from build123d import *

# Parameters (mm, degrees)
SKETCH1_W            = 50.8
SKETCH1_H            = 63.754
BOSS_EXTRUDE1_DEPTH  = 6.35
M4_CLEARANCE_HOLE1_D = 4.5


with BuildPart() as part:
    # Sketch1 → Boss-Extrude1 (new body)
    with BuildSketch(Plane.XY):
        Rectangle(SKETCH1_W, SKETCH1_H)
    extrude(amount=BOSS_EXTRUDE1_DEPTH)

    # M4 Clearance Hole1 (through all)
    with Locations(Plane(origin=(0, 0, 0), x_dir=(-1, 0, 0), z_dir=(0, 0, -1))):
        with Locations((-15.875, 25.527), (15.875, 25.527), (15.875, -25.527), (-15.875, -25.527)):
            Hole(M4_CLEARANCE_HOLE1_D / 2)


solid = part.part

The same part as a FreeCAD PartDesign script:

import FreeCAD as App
import Part
import Sketcher

V = App.Vector
Q = App.Units.Quantity


def add_polygon(sketch, points):
    """Adds a closed chain of lines whose ends are joined by coincident constraints."""
    first, n = sketch.GeometryCount, len(points)
    for a, b in zip(points, points[1:] + points[:1]):
        sketch.addGeometry(Part.LineSegment(App.Vector(*a, 0), App.Vector(*b, 0)), False)
    for i in range(n):
        sketch.addConstraint(Sketcher.Constraint("Coincident", first + i, 2, first + (i + 1) % n, 1))

doc = App.newDocument("Part")
params = doc.addObject("Spreadsheet::Sheet", "Params")
for row, (alias, value) in enumerate([
    ("sketch1_width", "2 in"),
    ("sketch1_height", "2.51 in"),
    ("pad1_length", "0.25 in"),
    ("hole_diameter", "4.5 mm"),
], start=1):
    params.set(f"A{row}", alias)
    params.set(f"B{row}", "=" + value)
    params.setAlias(f"B{row}", alias)

body = doc.addObject("PartDesign::Body", "Body")

# Sketch on XY plane
sketch1 = doc.addObject("Sketcher::SketchObject", "Sketch")
body.addObject(sketch1)
sketch1.AttachmentSupport = (doc.XY_Plane, [""])
sketch1.MapMode = "FlatFace"
add_polygon(sketch1, [(-25.4, 31.877), (-25.4, -31.877), (25.4, -31.877), (25.4, 31.877)])  # lines 0-3
sketch1.addConstraint([
    Sketcher.Constraint("Vertical", 0),
    Sketcher.Constraint("Horizontal", 1),
    Sketcher.Constraint("Vertical", 2),
    Sketcher.Constraint("Horizontal", 3),
    Sketcher.Constraint("Symmetric", 0, 2, 2, 2, -1, 1),
    Sketcher.Constraint("DistanceX", 1, 1, 1, 2, Q("2 in")),
    Sketcher.Constraint("DistanceY", 0, 2, 0, 1, Q("2.51 in")),
])
sketch1.setExpression("Constraints[9]", "Params.sketch1_width")
sketch1.setExpression("Constraints[10]", "Params.sketch1_height")
pad1 = doc.addObject("PartDesign::Pad", "Pad")
body.addObject(pad1)
pad1.Profile = sketch1
pad1.setExpression("Length", "Params.pad1_length")

# Sketch on XY plane
sketch2 = doc.addObject("Sketcher::SketchObject", "Sketch001")
body.addObject(sketch2)
sketch2.AttachmentSupport = (doc.XY_Plane, [""])
sketch2.MapMode = "FlatFace"
sketch2.addGeometry([
    Part.Circle(V(15.875, 25.527, 0), V(0, 0, 1), 2.25),
    Part.Circle(V(-15.875, 25.527, 0), V(0, 0, 1), 2.25),
    Part.Circle(V(-15.875, -25.527, 0), V(0, 0, 1), 2.25),
    Part.Circle(V(15.875, -25.527, 0), V(0, 0, 1), 2.25),
], False)
sketch2.addConstraint([
    Sketcher.Constraint("Equal", 0, 1),
    Sketcher.Constraint("Equal", 1, 2),
    Sketcher.Constraint("Equal", 2, 3),
    Sketcher.Constraint("Symmetric", 0, 3, 2, 3, -1, 1),
    Sketcher.Constraint("Symmetric", 1, 3, 3, 3, -1, 1),
    Sketcher.Constraint("Symmetric", 0, 3, 1, 3, -2),
    Sketcher.Constraint("Diameter", 0, Q("4.5 mm")),
    Sketcher.Constraint("DistanceX", 1, 3, 0, 3, Q("1.25 in")),
    Sketcher.Constraint("DistanceY", 2, 3, 1, 3, Q("2.01 in")),
])
doc.recompute()
hole = doc.addObject("PartDesign::Hole", "Hole")
body.addObject(hole)
hole.Profile = sketch2
hole.ThreadType = "None"
hole.setExpression("Diameter", "Params.hole_diameter")
hole.DepthType = "ThroughAll"
hole.Reversed = True

doc.recompute()
